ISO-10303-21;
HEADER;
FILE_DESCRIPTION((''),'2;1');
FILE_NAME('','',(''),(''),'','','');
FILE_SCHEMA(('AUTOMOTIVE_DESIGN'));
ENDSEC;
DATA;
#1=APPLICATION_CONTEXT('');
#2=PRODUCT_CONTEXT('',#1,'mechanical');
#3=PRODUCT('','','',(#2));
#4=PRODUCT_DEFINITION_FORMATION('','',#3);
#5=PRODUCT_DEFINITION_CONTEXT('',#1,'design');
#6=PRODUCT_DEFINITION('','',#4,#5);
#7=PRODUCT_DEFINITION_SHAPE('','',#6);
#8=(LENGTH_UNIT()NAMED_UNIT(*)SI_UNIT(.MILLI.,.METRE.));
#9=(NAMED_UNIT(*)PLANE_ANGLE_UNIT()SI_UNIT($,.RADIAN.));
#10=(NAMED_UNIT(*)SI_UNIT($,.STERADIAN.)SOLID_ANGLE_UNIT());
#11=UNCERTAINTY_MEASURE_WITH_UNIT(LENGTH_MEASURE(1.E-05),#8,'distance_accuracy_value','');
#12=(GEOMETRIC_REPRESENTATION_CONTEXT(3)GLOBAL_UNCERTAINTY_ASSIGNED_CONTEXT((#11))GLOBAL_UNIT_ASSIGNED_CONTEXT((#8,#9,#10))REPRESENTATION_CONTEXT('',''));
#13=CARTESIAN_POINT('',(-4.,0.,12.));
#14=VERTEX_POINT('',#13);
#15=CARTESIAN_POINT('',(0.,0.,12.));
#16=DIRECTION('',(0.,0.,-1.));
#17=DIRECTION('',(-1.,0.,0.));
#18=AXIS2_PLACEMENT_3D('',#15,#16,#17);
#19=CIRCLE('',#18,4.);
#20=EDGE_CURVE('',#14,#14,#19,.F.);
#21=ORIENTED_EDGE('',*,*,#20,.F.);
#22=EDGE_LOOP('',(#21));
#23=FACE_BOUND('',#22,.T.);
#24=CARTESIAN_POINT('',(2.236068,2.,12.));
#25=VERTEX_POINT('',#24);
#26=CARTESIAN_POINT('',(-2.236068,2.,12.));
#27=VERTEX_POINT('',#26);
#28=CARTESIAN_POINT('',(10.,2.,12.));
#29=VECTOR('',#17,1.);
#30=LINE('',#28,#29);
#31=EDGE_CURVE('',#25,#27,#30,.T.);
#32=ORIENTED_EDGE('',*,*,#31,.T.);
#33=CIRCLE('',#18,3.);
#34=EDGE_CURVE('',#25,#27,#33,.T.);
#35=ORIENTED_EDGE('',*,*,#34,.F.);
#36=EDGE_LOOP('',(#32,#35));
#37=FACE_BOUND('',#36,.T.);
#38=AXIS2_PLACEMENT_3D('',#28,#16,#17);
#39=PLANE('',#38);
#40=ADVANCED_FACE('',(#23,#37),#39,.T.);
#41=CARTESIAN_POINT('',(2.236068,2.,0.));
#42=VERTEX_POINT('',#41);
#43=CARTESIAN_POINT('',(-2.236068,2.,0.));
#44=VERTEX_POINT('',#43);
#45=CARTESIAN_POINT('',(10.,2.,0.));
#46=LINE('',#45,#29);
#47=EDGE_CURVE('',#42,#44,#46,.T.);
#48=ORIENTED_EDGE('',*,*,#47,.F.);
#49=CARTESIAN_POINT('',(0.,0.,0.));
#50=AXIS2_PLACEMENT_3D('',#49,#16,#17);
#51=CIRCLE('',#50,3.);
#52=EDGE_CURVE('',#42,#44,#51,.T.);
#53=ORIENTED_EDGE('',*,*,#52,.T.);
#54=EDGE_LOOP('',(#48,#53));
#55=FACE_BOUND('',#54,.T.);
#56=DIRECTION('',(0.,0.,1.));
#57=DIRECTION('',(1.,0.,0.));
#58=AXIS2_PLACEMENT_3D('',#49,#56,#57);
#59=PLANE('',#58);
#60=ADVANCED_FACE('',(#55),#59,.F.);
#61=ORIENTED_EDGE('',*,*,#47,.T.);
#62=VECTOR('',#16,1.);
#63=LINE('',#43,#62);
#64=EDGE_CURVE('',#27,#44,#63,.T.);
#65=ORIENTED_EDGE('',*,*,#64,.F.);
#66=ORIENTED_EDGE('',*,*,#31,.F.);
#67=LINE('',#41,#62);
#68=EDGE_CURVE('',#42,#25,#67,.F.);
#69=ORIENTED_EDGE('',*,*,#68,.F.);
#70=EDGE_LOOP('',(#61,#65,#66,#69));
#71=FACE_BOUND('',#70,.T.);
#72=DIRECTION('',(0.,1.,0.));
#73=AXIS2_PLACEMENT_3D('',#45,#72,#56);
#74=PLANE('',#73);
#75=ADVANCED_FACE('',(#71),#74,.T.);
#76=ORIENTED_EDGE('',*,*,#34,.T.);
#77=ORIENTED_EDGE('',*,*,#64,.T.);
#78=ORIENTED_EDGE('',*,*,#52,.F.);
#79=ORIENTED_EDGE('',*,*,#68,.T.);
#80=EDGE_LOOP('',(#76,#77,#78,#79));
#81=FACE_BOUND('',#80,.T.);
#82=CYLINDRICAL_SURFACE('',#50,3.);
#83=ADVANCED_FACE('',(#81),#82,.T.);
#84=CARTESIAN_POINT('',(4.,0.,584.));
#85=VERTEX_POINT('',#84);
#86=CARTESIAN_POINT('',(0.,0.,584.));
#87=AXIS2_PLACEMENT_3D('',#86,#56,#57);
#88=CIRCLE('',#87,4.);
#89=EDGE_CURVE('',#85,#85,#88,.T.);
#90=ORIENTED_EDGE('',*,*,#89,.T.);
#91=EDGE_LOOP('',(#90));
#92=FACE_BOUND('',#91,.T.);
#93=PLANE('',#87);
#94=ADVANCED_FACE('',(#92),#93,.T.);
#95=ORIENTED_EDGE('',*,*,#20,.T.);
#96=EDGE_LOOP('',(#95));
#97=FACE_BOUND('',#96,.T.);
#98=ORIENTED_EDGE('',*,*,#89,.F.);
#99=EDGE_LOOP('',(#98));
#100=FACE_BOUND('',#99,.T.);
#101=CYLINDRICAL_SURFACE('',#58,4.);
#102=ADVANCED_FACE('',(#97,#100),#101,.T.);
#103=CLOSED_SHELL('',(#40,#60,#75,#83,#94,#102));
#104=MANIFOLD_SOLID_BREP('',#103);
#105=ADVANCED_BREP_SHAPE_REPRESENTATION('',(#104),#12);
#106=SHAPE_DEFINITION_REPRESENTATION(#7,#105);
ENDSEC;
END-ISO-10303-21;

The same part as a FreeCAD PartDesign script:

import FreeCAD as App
import Part
import Sketcher
Q = App.Units.Quantity


def add_polygon(sketch, points):
    """Adds a closed chain of lines whose ends are joined by coincident constraints."""
    first, n = sketch.GeometryCount, len(points)
    for a, b in zip(points, points[1:] + points[:1]):
        sketch.addGeometry(Part.LineSegment(App.Vector(*a, 0), App.Vector(*b, 0)), False)
    for i in range(n):
        sketch.addConstraint(Sketcher.Constraint("Coincident", first + i, 2, first + (i + 1) % n, 1))

doc = App.newDocument("Part")
body = doc.addObject("PartDesign::Body", "Body")

# Sketch on XY plane
sketch1 = body.newObject("Sketcher::SketchObject", "Sketch")
sketch1.AttachmentSupport = (doc.getObject("XY_Plane"), [""])
sketch1.MapMode = "FlatFace"
sketch1.addGeometry(Part.Circle(App.Vector(0, 0, 0), App.Vector(0, 0, 1), 6.35), False)
sketch1.addConstraint([
    Sketcher.Constraint("Coincident", 0, 3, -1, 1),
    Sketcher.Constraint("Diameter", 0, Q("12.7 mm")),
])
pad1 = body.newObject("PartDesign::Pad", "Pad")
pad1.Profile = sketch1
pad1.Length = 584

# Sketch on XY plane
sketch2 = body.newObject("Sketcher::SketchObject", "Sketch001")
sketch2.AttachmentSupport = (doc.getObject("XY_Plane"), [""])
sketch2.MapMode = "FlatFace"
sketch2.AttachmentOffset = App.Placement(App.Vector(0, 0, 584), App.Rotation())
sketch2.addGeometry([
    Part.Circle(App.Vector(0, 0, 0), App.Vector(0, 0, 1), 12.7),
    Part.Circle(App.Vector(0, 0, 0), App.Vector(0, 0, 1), 4),
], False)
sketch2.addConstraint([
    Sketcher.Constraint("Coincident", 0, 3, -1, 1),
    Sketcher.Constraint("Coincident", 1, 3, -1, 1),
    Sketcher.Constraint("Diameter", 1, Q("8 mm")),
    Sketcher.Constraint("Diameter", 0, Q("25.4 mm")),
])
pocket1 = body.newObject("PartDesign::Pocket", "Pocket")
pocket1.Profile = sketch2
pocket1.Type = "ThroughAll"

# Sketch on YZ plane
sketch3 = body.newObject("Sketcher::SketchObject", "Sketch002")
sketch3.AttachmentSupport = (doc.getObject("YZ_Plane"), [""])
sketch3.MapMode = "FlatFace"
add_polygon(sketch3, [(12, 12), (2, 12), (2, 0), (12, 0)])  # lines 0-3
sketch3.addConstraint([
    Sketcher.Constraint("Horizontal", 0),
    Sketcher.Constraint("Vertical", 1),
    Sketcher.Constraint("Horizontal", 2),
    Sketcher.Constraint("Vertical", 3),
    Sketcher.Constraint("PointOnObject", 1, 2, -1),
    Sketcher.Constraint("DistanceX", 0, 2, 0, 1, Q("10 mm")),
    Sketcher.Constraint("DistanceY", 1, 2, 1, 1, Q("12 mm")),
    Sketcher.Constraint("DistanceX", -1, 1, 0, 2, Q("2 mm")),
])
pocket2 = body.newObject("PartDesign::Pocket", "Pocket001")
pocket2.Profile = sketch3
pocket2.Type = "ThroughAll"
pocket2.Midplane = True

# Sketch on XZ plane
sketch4 = body.newObject("Sketcher::SketchObject", "Sketch003")
sketch4.AttachmentSupport = (doc.getObject("XZ_Plane"), [""])
sketch4.MapMode = "FlatFace"
add_polygon(sketch4, [(-13, 0), (-13, 12), (-3, 12), (-3, 0)])  # lines 0-3
sketch4.addConstraint([
    Sketcher.Constraint("Vertical", 0),
    Sketcher.Constraint("Horizontal", 1),
    Sketcher.Constraint("Vertical", 2),
    Sketcher.Constraint("Horizontal", 3),
    Sketcher.Constraint("PointOnObject", 2, 2, -1),
    Sketcher.Constraint("DistanceX", 1, 1, 1, 2, Q("10 mm")),
    Sketcher.Constraint("DistanceY", 0, 1, 0, 2, Q("12 mm")),
    Sketcher.Constraint("DistanceX", 0, 2, -1, 1, Q("13 mm")),
])
groove = body.newObject("PartDesign::Groove", "Groove")
groove.Profile = sketch4
groove.ReferenceAxis = (sketch4, ["V_Axis"])
groove.Angle = 360

doc.recompute()
